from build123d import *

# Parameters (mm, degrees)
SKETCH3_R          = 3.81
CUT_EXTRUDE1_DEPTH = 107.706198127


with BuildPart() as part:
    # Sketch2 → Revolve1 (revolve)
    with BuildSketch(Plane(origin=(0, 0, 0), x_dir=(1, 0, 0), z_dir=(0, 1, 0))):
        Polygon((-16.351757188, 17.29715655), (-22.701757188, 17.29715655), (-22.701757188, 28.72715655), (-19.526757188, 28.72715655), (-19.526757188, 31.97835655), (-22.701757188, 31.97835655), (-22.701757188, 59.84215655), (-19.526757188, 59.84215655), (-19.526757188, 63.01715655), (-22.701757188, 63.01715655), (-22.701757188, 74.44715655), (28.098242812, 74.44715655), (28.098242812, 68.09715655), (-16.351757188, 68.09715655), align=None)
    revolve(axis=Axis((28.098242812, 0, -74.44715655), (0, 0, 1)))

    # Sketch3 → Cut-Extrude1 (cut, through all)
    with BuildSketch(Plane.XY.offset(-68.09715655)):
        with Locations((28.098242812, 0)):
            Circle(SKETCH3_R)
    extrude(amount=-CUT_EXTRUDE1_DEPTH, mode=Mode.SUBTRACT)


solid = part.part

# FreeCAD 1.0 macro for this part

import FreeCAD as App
import Part
import Sketcher
from FreeCAD import Vector
Q = App.Units.Quantity

doc = App.newDocument("Part")
params = doc.addObject("Spreadsheet::Sheet", "Params")
for row, (alias, value) in enumerate([
    ("sketch1_width", "2 in"),
    ("sketch1_width2", "0.25 in"),
    ("sketch1_height", "0.45 in"),
    ("sketch1_width3", "0.125 in"),
    ("sketch1_height2", "1.097 in"),
    ("revolution_angle", "360 deg"),
    ("sketch2_diameter", "0.3 in"),
], start=1):
    params.set(f"A{row}", alias)
    params.set(f"B{row}", "=" + value)
    params.setAlias(f"B{row}", alias)

body = doc.addObject("PartDesign::Body", "Body")

# Sketch on XZ plane
sketch1 = body.newObject("Sketcher::SketchObject", "Sketch")
sketch1.AttachmentSupport = (doc.getObject("XZ_Plane"), [""])
sketch1.MapMode = "FlatFace"
sketch1.addGeometry(Part.LineSegment(Vector(-22.7, -17.3, 0), Vector(-16.4, -17.3, 0)), False)
sketch1.addGeometry(Part.LineSegment(Vector(-16.4, -17.3, 0), Vector(-16.4, -68.1, 0)), False)
sketch1.addGeometry(Part.LineSegment(Vector(-16.4, -68.1, 0), Vector(28.1, -68.1, 0)), False)
sketch1.addGeometry(Part.LineSegment(Vector(28.1, -68.1, 0), Vector(28.1, -74.4, 0)), False)
sketch1.addGeometry(Part.LineSegment(Vector(28.1, -74.4, 0), Vector(-22.7, -74.4, 0)), False)
sketch1.addGeometry(Part.LineSegment(Vector(-22.7, -74.4, 0), Vector(-22.7, -63, 0)), False)
sketch1.addGeometry(Part.LineSegment(Vector(-22.7, -63, 0), Vector(-19.5, -63, 0)), False)
sketch1.addGeometry(Part.LineSegment(Vector(-19.5, -63, 0), Vector(-19.5, -59.8, 0)), False)
sketch1.addGeometry(Part.LineSegment(Vector(-19.5, -59.8, 0), Vector(-22.7, -59.8, 0)), False)
sketch1.addGeometry(Part.LineSegment(Vector(-22.7, -59.8, 0), Vector(-22.7, -32, 0)), False)
sketch1.addGeometry(Part.LineSegment(Vector(-22.7, -32, 0), Vector(-19.5, -32, 0)), False)
sketch1.addGeometry(Part.LineSegment(Vector(-19.5, -32, 0), Vector(-19.5, -28.7, 0)), False)
sketch1.addGeometry(Part.LineSegment(Vector(-19.5, -28.7, 0), Vector(-22.7, -28.7, 0)), False)
sketch1.addGeometry(Part.LineSegment(Vector(-22.7, -28.7, 0), Vector(-22.7, -17.3, 0)), False)
sketch1.addGeometry(Part.LineSegment(Vector(28.1, -74.4, 0), Vector(28.1, -17.3, 0)), True)  # axis
sketch1.addConstraint(Sketcher.Constraint("Coincident", 0, 2, 1, 1))
sketch1.addConstraint(Sketcher.Constraint("Coincident", 1, 2, 2, 1))
sketch1.addConstraint(Sketcher.Constraint("Coincident", 2, 2, 3, 1))
sketch1.addConstraint(Sketcher.Constraint("Coincident", 3, 2, 4, 1))
sketch1.addConstraint(Sketcher.Constraint("Coincident", 4, 2, 5, 1))
sketch1.addConstraint(Sketcher.Constraint("Coincident", 5, 2, 6, 1))
sketch1.addConstraint(Sketcher.Constraint("Coincident", 6, 2, 7, 1))
sketch1.addConstraint(Sketcher.Constraint("Coincident", 7, 2, 8, 1))
sketch1.addConstraint(Sketcher.Constraint("Coincident", 8, 2, 9, 1))
sketch1.addConstraint(Sketcher.Constraint("Coincident", 9, 2, 10, 1))
sketch1.addConstraint(Sketcher.Constraint("Coincident", 10, 2, 11, 1))
sketch1.addConstraint(Sketcher.Constraint("Coincident", 11, 2, 12, 1))
sketch1.addConstraint(Sketcher.Constraint("Coincident", 12, 2, 13, 1))
sketch1.addConstraint(Sketcher.Constraint("Coincident", 13, 2, 0, 1))
sketch1.addConstraint(Sketcher.Constraint("Horizontal", 0))
sketch1.addConstraint(Sketcher.Constraint("Vertical", 1))
sketch1.addConstraint(Sketcher.Constraint("Horizontal", 2))
sketch1.addConstraint(Sketcher.Constraint("Vertical", 3))
sketch1.addConstraint(Sketcher.Constraint("Horizontal", 4))
sketch1.addConstraint(Sketcher.Constraint("Vertical", 5))
sketch1.addConstraint(Sketcher.Constraint("Horizontal", 6))
sketch1.addConstraint(Sketcher.Constraint("Vertical", 7))
sketch1.addConstraint(Sketcher.Constraint("Horizontal", 8))
sketch1.addConstraint(Sketcher.Constraint("Vertical", 9))
sketch1.addConstraint(Sketcher.Constraint("Horizontal", 10))
sketch1.addConstraint(Sketcher.Constraint("Vertical", 11))
sketch1.addConstraint(Sketcher.Constraint("Horizontal", 12))
sketch1.addConstraint(Sketcher.Constraint("Vertical", 13))
sketch1.addConstraint(Sketcher.Constraint("Vertical", 14))
sketch1.addConstraint(Sketcher.Constraint("Coincident", 14, 1, 3, 2))
sketch1.addConstraint(Sketcher.Constraint("Horizontal", 13, 2, 14, 2))
sketch1.addConstraint(Sketcher.Constraint("Vertical", 5, 2, 8, 2))
sketch1.addConstraint(Sketcher.Constraint("Vertical", 7, 2, 10, 2))
sketch1.addConstraint(Sketcher.Constraint("Vertical", 9, 2, 12, 2))
sketch1.addConstraint(Sketcher.Constraint("Equal", 4, 1))
sketch1.addConstraint(Sketcher.Constraint("Equal", 0, 3))
sketch1.addConstraint(Sketcher.Constraint("Equal", 12, 7))
sketch1.addConstraint(Sketcher.Constraint("Equal", 5, 13))
sketch1.addConstraint(Sketcher.Constraint("DistanceX", 4, 2, 4, 1, Q("2 in")))
sketch1.addConstraint(Sketcher.Constraint("DistanceX", 0, 1, 0, 2, Q("0.25 in")))
sketch1.addConstraint(Sketcher.Constraint("DistanceY", 5, 1, 5, 2, Q("0.45 in")))
sketch1.addConstraint(Sketcher.Constraint("DistanceX", 6, 1, 6, 2, Q("0.125 in")))
sketch1.addConstraint(Sketcher.Constraint("DistanceY", 9, 1, 9, 2, Q("1.097 in")))
sketch1.addConstraint(Sketcher.Constraint("DistanceX", 0, 2, -1, 1, Q("16.351757 mm")))
sketch1.addConstraint(Sketcher.Constraint("DistanceY", 0, 2, -1, 1, Q("17.297157 mm")))
sketch1.setExpression("Constraints[38]", "Params.sketch1_width")
sketch1.setExpression("Constraints[39]", "Params.sketch1_width2")
sketch1.setExpression("Constraints[40]", "Params.sketch1_height")
sketch1.setExpression("Constraints[41]", "Params.sketch1_width3")
sketch1.setExpression("Constraints[42]", "Params.sketch1_height2")
revolution = body.newObject("PartDesign::Revolution", "Revolution")
revolution.Profile = sketch1
revolution.ReferenceAxis = (sketch1, ["Axis0"])
revolution.setExpression("Angle", "Params.revolution_angle")

# Sketch on XY plane
sketch2 = body.newObject("Sketcher::SketchObject", "Sketch001")
sketch2.AttachmentSupport = (doc.getObject("XY_Plane"), [""])
sketch2.MapMode = "FlatFace"
sketch2.AttachmentOffset = App.Placement(Vector(0, 0, -68.097157), App.Rotation())
sketch2.addGeometry(Part.Circle(Vector(28.1, 0, 0), Vector(0, 0, 1), 3.8), False)
sketch2.addConstraint(Sketcher.Constraint("PointOnObject", 0, 3, -1))
sketch2.addConstraint(Sketcher.Constraint("Diameter", 0, Q("0.3 in")))
sketch2.addConstraint(Sketcher.Constraint("DistanceX", -1, 1, 0, 3, Q("28.098243 mm")))
sketch2.setExpression("Constraints[1]", "Params.sketch2_diameter")
pocket1 = body.newObject("PartDesign::Pocket", "Pocket")
pocket1.Profile = sketch2
pocket1.Type = "ThroughAll"

doc.recompute()
